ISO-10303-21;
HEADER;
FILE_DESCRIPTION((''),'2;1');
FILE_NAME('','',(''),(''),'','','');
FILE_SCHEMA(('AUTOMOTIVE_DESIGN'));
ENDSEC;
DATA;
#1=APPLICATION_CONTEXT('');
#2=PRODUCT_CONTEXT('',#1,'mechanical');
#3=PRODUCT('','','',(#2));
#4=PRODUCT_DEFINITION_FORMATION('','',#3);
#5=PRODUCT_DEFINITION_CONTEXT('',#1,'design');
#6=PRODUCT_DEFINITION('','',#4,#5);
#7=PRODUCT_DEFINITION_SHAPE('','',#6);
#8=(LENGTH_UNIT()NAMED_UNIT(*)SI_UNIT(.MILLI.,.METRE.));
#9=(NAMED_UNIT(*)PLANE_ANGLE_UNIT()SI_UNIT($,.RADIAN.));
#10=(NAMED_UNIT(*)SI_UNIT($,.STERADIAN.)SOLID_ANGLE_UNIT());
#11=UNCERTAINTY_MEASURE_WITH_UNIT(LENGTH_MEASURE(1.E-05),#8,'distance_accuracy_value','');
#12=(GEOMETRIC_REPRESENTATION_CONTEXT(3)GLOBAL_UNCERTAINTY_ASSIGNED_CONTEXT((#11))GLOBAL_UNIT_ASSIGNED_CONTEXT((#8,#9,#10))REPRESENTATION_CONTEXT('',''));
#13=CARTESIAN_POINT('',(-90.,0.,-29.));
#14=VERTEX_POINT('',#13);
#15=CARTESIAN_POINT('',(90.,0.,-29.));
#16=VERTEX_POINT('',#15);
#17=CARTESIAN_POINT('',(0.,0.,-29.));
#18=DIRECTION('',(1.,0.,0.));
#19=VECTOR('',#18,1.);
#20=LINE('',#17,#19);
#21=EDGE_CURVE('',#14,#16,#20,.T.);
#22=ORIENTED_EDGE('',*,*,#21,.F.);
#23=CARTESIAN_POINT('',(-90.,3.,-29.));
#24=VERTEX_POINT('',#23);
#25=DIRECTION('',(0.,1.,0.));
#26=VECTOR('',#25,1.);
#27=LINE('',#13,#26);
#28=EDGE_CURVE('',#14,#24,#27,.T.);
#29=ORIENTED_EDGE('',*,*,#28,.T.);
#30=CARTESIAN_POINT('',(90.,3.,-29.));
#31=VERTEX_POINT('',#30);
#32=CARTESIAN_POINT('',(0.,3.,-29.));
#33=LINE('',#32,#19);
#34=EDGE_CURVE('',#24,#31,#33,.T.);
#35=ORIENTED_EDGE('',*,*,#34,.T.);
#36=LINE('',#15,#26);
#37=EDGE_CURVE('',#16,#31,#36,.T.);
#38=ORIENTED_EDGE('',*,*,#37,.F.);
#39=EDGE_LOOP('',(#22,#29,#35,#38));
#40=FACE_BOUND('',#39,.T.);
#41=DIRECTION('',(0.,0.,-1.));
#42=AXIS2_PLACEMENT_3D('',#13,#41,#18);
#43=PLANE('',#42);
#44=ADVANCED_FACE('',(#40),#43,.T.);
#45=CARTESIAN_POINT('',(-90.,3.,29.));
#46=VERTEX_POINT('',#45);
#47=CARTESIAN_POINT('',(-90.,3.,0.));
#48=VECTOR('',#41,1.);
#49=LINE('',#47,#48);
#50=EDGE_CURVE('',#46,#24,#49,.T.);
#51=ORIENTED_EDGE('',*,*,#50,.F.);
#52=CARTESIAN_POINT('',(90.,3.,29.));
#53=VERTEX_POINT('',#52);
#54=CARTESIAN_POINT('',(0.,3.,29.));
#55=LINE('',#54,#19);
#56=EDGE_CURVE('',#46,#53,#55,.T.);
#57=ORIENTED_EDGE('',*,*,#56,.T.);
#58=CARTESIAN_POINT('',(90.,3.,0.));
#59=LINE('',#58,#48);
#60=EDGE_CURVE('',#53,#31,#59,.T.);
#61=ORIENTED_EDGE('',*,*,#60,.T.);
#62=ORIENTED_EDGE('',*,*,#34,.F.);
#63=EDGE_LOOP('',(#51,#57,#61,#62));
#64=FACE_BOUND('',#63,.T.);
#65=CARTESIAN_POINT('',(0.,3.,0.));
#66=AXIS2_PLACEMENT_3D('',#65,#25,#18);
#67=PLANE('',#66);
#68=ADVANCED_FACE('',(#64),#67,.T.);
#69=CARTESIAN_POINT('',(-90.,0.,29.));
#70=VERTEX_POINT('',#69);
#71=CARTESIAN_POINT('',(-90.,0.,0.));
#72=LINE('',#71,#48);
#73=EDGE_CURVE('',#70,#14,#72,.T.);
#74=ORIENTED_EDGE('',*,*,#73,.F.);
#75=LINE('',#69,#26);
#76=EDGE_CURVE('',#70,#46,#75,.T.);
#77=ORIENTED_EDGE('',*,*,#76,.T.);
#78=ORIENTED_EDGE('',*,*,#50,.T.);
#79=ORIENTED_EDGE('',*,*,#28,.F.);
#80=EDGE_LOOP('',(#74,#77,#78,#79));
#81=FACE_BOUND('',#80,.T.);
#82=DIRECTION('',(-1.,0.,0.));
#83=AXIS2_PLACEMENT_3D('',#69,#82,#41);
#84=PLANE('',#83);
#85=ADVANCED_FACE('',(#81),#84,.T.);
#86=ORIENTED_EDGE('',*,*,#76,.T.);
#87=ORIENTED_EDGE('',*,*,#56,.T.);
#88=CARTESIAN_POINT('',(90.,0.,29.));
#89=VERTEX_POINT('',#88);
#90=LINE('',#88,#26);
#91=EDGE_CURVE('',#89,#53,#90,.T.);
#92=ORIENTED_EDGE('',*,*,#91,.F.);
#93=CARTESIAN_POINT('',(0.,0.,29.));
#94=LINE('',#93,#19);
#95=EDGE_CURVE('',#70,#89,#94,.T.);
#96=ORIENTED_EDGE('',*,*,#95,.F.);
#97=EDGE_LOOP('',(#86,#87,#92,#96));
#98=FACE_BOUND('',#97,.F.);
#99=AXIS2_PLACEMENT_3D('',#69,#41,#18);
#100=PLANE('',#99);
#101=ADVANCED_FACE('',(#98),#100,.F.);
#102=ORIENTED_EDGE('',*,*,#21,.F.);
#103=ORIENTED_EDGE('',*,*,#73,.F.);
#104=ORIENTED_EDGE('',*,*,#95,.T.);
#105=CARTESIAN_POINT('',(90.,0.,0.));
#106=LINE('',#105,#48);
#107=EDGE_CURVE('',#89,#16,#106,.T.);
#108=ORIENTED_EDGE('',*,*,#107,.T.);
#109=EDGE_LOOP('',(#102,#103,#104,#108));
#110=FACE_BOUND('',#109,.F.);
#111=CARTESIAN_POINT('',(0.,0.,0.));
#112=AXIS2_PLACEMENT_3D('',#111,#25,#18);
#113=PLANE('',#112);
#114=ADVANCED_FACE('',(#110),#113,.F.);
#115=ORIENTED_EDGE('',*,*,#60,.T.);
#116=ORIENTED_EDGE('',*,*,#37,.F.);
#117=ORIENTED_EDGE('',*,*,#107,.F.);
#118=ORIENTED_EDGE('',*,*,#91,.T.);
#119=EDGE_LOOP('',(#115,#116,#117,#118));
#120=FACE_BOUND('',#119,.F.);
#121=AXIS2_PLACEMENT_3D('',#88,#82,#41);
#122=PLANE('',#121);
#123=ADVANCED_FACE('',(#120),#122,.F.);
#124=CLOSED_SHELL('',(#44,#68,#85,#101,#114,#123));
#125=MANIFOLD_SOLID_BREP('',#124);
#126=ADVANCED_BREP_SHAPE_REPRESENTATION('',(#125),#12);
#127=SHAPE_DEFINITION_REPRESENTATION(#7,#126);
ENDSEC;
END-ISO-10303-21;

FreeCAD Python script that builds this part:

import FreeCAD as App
import Part
import Sketcher
Q = App.Units.Quantity

doc = App.newDocument("Part")
body = doc.addObject("PartDesign::Body", "Body")

sketch1 = body.newObject("Sketcher::SketchObject", "Sketch")
sketch1.AttachmentSupport = (doc.getObject("XZ_Plane"), [""])
sketch1.MapMode = "FlatFace"
sketch1.addGeometry(Part.LineSegment(App.Vector(-90, -29, 0), App.Vector(-90, 29, 0)), False)
sketch1.addGeometry(Part.LineSegment(App.Vector(-90, 29, 0), App.Vector(90, 29, 0)), False)
sketch1.addGeometry(Part.LineSegment(App.Vector(90, 29, 0), App.Vector(90, -29, 0)), False)
sketch1.addGeometry(Part.LineSegment(App.Vector(90, -29, 0), App.Vector(-90, -29, 0)), False)
sketch1.addConstraint(Sketcher.Constraint("Coincident", 0, 2, 1, 1))
sketch1.addConstraint(Sketcher.Constraint("Coincident", 1, 2, 2, 1))
sketch1.addConstraint(Sketcher.Constraint("Coincident", 2, 2, 3, 1))
sketch1.addConstraint(Sketcher.Constraint("Coincident", 3, 2, 0, 1))
sketch1.addConstraint(Sketcher.Constraint("Vertical", 0))
sketch1.addConstraint(Sketcher.Constraint("Horizontal", 1))
sketch1.addConstraint(Sketcher.Constraint("Vertical", 2))
sketch1.addConstraint(Sketcher.Constraint("Horizontal", 3))
sketch1.addConstraint(Sketcher.Constraint("Symmetric", 0, 2, 2, 2, -1, 1))
sketch1.addConstraint(Sketcher.Constraint("DistanceX", 1, 1, 1, 2, Q("180 mm")))
sketch1.addConstraint(Sketcher.Constraint("DistanceY", 0, 1, 0, 2, Q("58 mm")))
pad1 = body.newObject("PartDesign::Pad", "Pad")
pad1.Profile = sketch1
pad1.Length = 3
pad1.Reversed = True

doc.recompute()
